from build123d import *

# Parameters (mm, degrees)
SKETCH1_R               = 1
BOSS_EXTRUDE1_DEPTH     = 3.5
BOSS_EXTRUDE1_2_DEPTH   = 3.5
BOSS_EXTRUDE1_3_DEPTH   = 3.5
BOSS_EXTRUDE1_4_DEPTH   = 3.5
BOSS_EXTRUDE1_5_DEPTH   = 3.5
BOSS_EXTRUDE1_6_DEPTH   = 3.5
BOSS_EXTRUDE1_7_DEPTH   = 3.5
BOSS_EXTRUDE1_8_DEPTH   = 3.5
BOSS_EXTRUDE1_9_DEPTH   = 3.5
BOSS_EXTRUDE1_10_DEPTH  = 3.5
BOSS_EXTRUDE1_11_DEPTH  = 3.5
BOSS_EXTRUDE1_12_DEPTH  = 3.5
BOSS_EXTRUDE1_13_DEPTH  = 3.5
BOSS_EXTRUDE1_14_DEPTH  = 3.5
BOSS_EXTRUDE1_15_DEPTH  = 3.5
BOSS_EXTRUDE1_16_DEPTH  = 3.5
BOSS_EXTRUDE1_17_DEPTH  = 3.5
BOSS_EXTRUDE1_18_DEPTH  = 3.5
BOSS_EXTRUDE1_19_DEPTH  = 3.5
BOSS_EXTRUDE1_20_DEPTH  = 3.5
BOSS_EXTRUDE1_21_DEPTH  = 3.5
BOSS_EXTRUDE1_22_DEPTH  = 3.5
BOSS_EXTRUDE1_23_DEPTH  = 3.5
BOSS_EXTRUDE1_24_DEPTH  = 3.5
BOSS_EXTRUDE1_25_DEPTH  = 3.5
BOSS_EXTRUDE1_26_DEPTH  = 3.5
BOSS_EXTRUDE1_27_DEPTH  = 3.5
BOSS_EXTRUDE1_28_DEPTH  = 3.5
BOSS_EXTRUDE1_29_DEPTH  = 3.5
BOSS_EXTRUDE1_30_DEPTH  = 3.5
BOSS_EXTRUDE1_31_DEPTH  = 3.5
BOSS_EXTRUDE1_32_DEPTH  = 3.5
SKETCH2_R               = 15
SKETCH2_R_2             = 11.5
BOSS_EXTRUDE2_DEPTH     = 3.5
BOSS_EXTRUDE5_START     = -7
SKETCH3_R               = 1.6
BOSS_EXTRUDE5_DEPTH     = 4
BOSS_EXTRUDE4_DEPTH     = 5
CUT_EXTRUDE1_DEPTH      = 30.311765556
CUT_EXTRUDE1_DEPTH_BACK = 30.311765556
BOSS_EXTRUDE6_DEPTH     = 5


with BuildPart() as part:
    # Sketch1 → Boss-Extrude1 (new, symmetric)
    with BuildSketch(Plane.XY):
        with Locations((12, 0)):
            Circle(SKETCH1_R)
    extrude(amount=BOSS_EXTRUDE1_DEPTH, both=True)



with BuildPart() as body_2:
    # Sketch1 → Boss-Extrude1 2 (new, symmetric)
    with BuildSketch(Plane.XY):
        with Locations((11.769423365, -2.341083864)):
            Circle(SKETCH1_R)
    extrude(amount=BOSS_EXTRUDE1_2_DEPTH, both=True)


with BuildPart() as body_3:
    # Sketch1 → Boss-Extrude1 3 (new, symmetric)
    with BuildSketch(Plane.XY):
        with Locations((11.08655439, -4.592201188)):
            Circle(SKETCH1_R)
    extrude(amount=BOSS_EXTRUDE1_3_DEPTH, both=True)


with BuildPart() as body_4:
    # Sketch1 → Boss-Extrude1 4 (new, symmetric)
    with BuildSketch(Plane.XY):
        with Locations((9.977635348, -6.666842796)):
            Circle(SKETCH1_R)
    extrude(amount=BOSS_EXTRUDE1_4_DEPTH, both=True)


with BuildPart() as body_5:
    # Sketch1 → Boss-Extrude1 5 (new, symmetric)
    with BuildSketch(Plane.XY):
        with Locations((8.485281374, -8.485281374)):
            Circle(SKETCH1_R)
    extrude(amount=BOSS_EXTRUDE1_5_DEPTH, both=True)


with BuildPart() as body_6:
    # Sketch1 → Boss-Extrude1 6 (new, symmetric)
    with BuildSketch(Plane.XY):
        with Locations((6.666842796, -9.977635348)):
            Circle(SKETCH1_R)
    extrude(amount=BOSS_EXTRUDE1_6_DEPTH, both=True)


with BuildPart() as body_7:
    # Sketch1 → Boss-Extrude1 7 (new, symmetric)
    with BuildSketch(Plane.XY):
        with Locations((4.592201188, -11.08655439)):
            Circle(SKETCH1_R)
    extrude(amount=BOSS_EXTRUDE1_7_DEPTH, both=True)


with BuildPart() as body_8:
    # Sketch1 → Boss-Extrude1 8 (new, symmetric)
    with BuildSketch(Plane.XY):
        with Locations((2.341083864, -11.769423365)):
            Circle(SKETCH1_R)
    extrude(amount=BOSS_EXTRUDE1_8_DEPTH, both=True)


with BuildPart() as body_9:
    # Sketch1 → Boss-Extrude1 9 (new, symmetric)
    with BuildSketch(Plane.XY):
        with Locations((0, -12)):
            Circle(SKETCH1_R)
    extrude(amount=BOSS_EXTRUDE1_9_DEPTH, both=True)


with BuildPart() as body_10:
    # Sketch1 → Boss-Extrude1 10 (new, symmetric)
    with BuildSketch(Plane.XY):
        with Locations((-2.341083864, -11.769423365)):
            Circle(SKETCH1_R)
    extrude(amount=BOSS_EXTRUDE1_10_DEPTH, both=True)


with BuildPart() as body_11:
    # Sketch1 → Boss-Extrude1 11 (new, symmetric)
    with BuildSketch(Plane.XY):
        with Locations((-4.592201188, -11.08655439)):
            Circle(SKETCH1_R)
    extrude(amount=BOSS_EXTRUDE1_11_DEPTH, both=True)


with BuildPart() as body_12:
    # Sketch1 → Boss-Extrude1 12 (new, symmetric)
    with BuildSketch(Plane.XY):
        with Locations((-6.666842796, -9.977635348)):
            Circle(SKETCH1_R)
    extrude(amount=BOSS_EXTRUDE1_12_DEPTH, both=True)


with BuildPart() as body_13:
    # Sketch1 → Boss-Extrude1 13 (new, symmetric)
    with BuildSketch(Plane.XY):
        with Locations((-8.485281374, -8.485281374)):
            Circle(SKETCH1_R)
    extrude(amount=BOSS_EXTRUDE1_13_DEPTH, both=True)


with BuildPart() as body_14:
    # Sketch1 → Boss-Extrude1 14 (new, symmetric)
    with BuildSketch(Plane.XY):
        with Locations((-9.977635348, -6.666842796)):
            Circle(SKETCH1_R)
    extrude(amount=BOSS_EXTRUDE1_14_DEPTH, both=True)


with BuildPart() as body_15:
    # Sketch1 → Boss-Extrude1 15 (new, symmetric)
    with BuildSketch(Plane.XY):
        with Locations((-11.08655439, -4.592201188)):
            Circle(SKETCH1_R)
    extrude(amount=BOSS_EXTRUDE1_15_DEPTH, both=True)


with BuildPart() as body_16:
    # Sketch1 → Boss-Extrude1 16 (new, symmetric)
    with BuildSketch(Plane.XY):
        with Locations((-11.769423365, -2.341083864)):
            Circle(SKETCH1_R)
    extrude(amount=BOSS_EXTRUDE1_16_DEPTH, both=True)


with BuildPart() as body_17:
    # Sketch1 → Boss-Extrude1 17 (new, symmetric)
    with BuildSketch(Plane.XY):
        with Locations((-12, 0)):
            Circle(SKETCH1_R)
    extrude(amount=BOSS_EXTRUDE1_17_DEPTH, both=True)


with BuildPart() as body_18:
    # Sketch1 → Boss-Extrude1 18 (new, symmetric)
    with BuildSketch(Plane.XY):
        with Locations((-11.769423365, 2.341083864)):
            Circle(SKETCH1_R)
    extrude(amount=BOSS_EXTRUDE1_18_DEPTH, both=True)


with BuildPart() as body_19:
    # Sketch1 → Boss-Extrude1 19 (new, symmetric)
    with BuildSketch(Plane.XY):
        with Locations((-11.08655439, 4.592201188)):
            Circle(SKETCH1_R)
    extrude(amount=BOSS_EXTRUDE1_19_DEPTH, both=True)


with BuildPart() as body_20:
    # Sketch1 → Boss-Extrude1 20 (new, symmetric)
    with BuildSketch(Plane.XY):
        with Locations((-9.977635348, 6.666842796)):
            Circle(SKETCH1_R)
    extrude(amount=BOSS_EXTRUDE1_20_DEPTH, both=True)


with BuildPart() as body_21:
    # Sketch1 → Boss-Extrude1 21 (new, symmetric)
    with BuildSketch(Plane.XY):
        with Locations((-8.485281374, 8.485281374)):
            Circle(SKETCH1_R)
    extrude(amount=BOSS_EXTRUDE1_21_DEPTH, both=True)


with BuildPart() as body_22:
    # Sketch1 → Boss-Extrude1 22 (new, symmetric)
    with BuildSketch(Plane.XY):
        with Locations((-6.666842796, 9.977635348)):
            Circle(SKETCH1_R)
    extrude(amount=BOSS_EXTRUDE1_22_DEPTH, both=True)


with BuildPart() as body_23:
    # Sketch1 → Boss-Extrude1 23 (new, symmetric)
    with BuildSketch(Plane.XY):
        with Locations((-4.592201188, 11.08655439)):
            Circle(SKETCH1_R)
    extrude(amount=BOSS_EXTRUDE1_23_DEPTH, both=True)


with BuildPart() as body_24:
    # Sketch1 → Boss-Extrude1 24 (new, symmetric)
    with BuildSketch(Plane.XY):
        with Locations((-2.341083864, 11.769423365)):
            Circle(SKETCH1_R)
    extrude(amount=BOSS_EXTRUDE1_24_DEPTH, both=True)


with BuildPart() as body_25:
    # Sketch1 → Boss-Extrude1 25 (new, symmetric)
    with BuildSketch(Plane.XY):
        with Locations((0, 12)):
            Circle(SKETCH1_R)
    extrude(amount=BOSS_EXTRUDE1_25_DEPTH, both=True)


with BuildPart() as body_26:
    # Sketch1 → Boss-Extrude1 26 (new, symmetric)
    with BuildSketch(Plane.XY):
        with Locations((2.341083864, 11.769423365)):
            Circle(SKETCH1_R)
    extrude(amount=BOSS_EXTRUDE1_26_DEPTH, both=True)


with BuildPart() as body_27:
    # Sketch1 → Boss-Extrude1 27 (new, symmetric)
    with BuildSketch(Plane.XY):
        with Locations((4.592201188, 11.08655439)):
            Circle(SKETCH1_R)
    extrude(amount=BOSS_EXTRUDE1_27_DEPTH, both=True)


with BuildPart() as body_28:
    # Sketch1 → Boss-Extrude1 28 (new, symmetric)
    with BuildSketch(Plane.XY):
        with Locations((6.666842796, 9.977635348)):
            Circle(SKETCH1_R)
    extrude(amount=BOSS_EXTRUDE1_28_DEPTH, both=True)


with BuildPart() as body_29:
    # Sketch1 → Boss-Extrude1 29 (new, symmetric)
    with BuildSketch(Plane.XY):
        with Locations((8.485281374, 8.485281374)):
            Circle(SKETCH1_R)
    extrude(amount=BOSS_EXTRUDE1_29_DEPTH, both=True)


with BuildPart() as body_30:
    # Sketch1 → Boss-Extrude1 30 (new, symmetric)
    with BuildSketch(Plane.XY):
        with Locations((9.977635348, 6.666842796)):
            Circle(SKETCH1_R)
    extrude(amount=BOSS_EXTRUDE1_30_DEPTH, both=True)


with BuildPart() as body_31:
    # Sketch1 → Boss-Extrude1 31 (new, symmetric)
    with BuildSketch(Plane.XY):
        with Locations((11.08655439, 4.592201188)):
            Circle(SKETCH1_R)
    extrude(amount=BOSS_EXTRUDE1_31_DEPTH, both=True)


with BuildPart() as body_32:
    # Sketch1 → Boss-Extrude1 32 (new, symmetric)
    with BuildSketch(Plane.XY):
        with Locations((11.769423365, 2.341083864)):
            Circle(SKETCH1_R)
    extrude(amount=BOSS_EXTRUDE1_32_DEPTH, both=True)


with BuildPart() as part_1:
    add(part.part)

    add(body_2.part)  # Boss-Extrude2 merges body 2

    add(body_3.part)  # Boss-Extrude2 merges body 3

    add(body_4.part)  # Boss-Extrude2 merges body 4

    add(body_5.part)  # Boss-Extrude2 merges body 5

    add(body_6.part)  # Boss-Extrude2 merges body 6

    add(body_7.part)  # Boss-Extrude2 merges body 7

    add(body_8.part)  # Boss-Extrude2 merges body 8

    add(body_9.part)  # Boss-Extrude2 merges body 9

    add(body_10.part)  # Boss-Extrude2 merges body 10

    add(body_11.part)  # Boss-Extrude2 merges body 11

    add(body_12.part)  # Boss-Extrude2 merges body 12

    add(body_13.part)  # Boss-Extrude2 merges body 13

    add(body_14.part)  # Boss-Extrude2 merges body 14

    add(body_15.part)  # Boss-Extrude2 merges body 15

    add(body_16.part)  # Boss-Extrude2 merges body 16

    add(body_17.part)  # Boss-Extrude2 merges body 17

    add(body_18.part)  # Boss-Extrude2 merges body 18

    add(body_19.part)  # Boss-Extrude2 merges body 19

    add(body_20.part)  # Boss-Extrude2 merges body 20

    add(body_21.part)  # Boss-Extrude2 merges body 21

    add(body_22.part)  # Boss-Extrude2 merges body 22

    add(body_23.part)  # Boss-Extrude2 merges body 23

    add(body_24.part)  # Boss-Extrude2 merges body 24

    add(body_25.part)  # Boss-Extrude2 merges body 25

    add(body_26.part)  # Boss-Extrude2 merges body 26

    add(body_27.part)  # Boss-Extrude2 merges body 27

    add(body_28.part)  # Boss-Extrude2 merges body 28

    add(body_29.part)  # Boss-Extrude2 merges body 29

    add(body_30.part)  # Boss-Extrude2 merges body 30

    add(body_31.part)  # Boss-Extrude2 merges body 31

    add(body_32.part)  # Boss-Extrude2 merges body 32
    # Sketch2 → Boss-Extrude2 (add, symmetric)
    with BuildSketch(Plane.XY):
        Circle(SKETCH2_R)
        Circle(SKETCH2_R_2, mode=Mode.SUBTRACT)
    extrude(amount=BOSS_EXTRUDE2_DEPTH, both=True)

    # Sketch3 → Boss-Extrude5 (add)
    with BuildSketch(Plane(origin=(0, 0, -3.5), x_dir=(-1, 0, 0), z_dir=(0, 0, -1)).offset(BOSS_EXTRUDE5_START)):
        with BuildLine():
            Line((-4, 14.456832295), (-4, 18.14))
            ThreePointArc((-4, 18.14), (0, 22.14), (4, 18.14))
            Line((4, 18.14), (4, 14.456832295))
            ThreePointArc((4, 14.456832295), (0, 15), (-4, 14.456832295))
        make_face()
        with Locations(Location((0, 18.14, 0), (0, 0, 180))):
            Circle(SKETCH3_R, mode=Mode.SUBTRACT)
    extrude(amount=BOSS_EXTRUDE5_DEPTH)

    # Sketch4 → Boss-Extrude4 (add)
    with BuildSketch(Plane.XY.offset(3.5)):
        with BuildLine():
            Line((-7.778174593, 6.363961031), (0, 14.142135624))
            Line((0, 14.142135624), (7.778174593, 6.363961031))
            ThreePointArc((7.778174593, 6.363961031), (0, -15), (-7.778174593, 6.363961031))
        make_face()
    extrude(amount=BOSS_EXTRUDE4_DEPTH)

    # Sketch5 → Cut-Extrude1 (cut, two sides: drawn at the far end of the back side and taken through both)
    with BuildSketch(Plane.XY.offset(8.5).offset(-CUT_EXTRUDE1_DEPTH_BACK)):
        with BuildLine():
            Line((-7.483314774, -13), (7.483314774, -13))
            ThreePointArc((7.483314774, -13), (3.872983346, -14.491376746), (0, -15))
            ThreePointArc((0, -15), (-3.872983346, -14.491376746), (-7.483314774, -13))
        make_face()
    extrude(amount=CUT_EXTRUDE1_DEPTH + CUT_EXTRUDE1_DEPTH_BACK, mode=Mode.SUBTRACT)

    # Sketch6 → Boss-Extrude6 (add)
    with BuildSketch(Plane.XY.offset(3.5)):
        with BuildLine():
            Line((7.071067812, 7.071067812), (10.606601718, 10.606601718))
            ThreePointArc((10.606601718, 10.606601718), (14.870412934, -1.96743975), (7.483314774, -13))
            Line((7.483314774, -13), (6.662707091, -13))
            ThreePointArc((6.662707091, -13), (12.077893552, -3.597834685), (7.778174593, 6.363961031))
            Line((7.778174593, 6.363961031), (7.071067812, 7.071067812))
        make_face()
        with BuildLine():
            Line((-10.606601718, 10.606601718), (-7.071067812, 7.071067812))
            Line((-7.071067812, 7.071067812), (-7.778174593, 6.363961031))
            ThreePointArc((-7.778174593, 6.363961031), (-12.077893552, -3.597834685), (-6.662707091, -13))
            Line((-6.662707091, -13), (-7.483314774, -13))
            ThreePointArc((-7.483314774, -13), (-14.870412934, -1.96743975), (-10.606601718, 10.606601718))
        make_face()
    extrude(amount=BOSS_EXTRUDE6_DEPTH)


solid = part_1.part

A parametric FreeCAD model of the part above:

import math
import FreeCAD as App
import Part
import Sketcher

V = App.Vector
Q = App.Units.Quantity

doc = App.newDocument("Part")
body = doc.addObject("PartDesign::Body", "Body")

# Sketch on XY plane
sketch1 = body.newObject("Sketcher::SketchObject", "Sketch")
sketch1.AttachmentSupport = (doc.getObject("XY_Plane"), [""])
sketch1.MapMode = "FlatFace"
sketch1.addGeometry(Part.Circle(V(12, 0, 0), V(0, 0, 1), 1), False)
sketch1.addConstraint(Sketcher.Constraint("PointOnObject", 0, 3, -1))
sketch1.addConstraint(Sketcher.Constraint("Diameter", 0, Q("2 mm")))
sketch1.addConstraint(Sketcher.Constraint("DistanceX", -1, 1, 0, 3, Q("12 mm")))
pad1 = body.newObject("PartDesign::Pad", "Pad")
pad1.Profile = sketch1
pad1.Length = 7
pad1.Midplane = True
body2 = doc.addObject("PartDesign::Body", "Body001")

# Sketch on XY plane
sketch2 = body2.newObject("Sketcher::SketchObject", "Sketch001")
sketch2.AttachmentSupport = (doc.getObject("XY_Plane001"), [""])
sketch2.MapMode = "FlatFace"
sketch2.addGeometry(Part.Circle(V(11.8, -2.3, 0), V(0, 0, 1), 1), False)
sketch2.addConstraint(Sketcher.Constraint("Diameter", 0, Q("2 mm")))
sketch2.addConstraint(Sketcher.Constraint("DistanceX", -1, 1, 0, 3, Q("11.769423 mm")))
sketch2.addConstraint(Sketcher.Constraint("DistanceY", 0, 3, -1, 1, Q("2.341084 mm")))
pad2 = body2.newObject("PartDesign::Pad", "Pad001")
pad2.Profile = sketch2
pad2.Length = 7
pad2.Midplane = True
body3 = doc.addObject("PartDesign::Body", "Body002")

# Sketch on XY plane
sketch3 = body3.newObject("Sketcher::SketchObject", "Sketch002")
sketch3.AttachmentSupport = (doc.getObject("XY_Plane002"), [""])
sketch3.MapMode = "FlatFace"
sketch3.addGeometry(Part.Circle(V(11.1, -4.6, 0), V(0, 0, 1), 1), False)
sketch3.addConstraint(Sketcher.Constraint("Diameter", 0, Q("2 mm")))
sketch3.addConstraint(Sketcher.Constraint("DistanceY", 0, 3, -1, 1, Q("4.592201 mm")))
sketch3.addConstraint(Sketcher.Constraint("DistanceX", -1, 1, 0, 3, Q("11.086554 mm")))
pad3 = body3.newObject("PartDesign::Pad", "Pad002")
pad3.Profile = sketch3
pad3.Length = 7
pad3.Midplane = True
body4 = doc.addObject("PartDesign::Body", "Body003")

# Sketch on XY plane
sketch4 = body4.newObject("Sketcher::SketchObject", "Sketch003")
sketch4.AttachmentSupport = (doc.getObject("XY_Plane003"), [""])
sketch4.MapMode = "FlatFace"
sketch4.addGeometry(Part.Circle(V(10, -6.7, 0), V(0, 0, 1), 1), False)
sketch4.addConstraint(Sketcher.Constraint("Diameter", 0, Q("2 mm")))
sketch4.addConstraint(Sketcher.Constraint("DistanceX", -1, 1, 0, 3, Q("9.977635 mm")))
sketch4.addConstraint(Sketcher.Constraint("DistanceY", 0, 3, -1, 1, Q("6.666843 mm")))
pad4 = body4.newObject("PartDesign::Pad", "Pad003")
pad4.Profile = sketch4
pad4.Length = 7
pad4.Midplane = True
body5 = doc.addObject("PartDesign::Body", "Body004")

# Sketch on XY plane
sketch5 = body5.newObject("Sketcher::SketchObject", "Sketch004")
sketch5.AttachmentSupport = (doc.getObject("XY_Plane004"), [""])
sketch5.MapMode = "FlatFace"
sketch5.addGeometry(Part.Circle(V(8.5, -8.5, 0), V(0, 0, 1), 1), False)
sketch5.addConstraint(Sketcher.Constraint("Diameter", 0, Q("2 mm")))
sketch5.addConstraint(Sketcher.Constraint("DistanceX", -1, 1, 0, 3, Q("8.485281 mm")))
sketch5.addConstraint(Sketcher.Constraint("DistanceY", 0, 3, -1, 1, Q("8.485281 mm")))
pad5 = body5.newObject("PartDesign::Pad", "Pad004")
pad5.Profile = sketch5
pad5.Length = 7
pad5.Midplane = True
body6 = doc.addObject("PartDesign::Body", "Body005")

# Sketch on XY plane
sketch6 = body6.newObject("Sketcher::SketchObject", "Sketch005")
sketch6.AttachmentSupport = (doc.getObject("XY_Plane005"), [""])
sketch6.MapMode = "FlatFace"
sketch6.addGeometry(Part.Circle(V(6.7, -10, 0), V(0, 0, 1), 1), False)
sketch6.addConstraint(Sketcher.Constraint("Diameter", 0, Q("2 mm")))
sketch6.addConstraint(Sketcher.Constraint("DistanceX", -1, 1, 0, 3, Q("6.666843 mm")))
sketch6.addConstraint(Sketcher.Constraint("DistanceY", 0, 3, -1, 1, Q("9.977635 mm")))
pad6 = body6.newObject("PartDesign::Pad", "Pad005")
pad6.Profile = sketch6
pad6.Length = 7
pad6.Midplane = True
body7 = doc.addObject("PartDesign::Body", "Body006")

# Sketch on XY plane
sketch7 = body7.newObject("Sketcher::SketchObject", "Sketch006")
sketch7.AttachmentSupport = (doc.getObject("XY_Plane006"), [""])
sketch7.MapMode = "FlatFace"
sketch7.addGeometry(Part.Circle(V(4.6, -11.1, 0), V(0, 0, 1), 1), False)
sketch7.addConstraint(Sketcher.Constraint("Diameter", 0, Q("2 mm")))
sketch7.addConstraint(Sketcher.Constraint("DistanceX", -1, 1, 0, 3, Q("4.592201 mm")))
sketch7.addConstraint(Sketcher.Constraint("DistanceY", 0, 3, -1, 1, Q("11.086554 mm")))
pad7 = body7.newObject("PartDesign::Pad", "Pad006")
pad7.Profile = sketch7
pad7.Length = 7
pad7.Midplane = True
body8 = doc.addObject("PartDesign::Body", "Body007")

# Sketch on XY plane
sketch8 = body8.newObject("Sketcher::SketchObject", "Sketch007")
sketch8.AttachmentSupport = (doc.getObject("XY_Plane007"), [""])
sketch8.MapMode = "FlatFace"
sketch8.addGeometry(Part.Circle(V(2.3, -11.8, 0), V(0, 0, 1), 1), False)
sketch8.addConstraint(Sketcher.Constraint("Diameter", 0, Q("2 mm")))
sketch8.addConstraint(Sketcher.Constraint("DistanceX", -1, 1, 0, 3, Q("2.341084 mm")))
sketch8.addConstraint(Sketcher.Constraint("DistanceY", 0, 3, -1, 1, Q("11.769423 mm")))
pad8 = body8.newObject("PartDesign::Pad", "Pad007")
pad8.Profile = sketch8
pad8.Length = 7
pad8.Midplane = True
body9 = doc.addObject("PartDesign::Body", "Body008")

# Sketch on XY plane
sketch9 = body9.newObject("Sketcher::SketchObject", "Sketch008")
sketch9.AttachmentSupport = (doc.getObject("XY_Plane008"), [""])
sketch9.MapMode = "FlatFace"
sketch9.addGeometry(Part.Circle(V(0, -12, 0), V(0, 0, 1), 1), False)
sketch9.addConstraint(Sketcher.Constraint("PointOnObject", 0, 3, -2))
sketch9.addConstraint(Sketcher.Constraint("Diameter", 0, Q("2 mm")))
sketch9.addConstraint(Sketcher.Constraint("DistanceY", 0, 3, -1, 1, Q("12 mm")))
pad9 = body9.newObject("PartDesign::Pad", "Pad008")
pad9.Profile = sketch9
pad9.Length = 7
pad9.Midplane = True
body10 = doc.addObject("PartDesign::Body", "Body009")

# Sketch on XY plane
sketch10 = body10.newObject("Sketcher::SketchObject", "Sketch009")
sketch10.AttachmentSupport = (doc.getObject("XY_Plane009"), [""])
sketch10.MapMode = "FlatFace"
sketch10.addGeometry(Part.Circle(V(-2.3, -11.8, 0), V(0, 0, 1), 1), False)
sketch10.addConstraint(Sketcher.Constraint("Diameter", 0, Q("2 mm")))
sketch10.addConstraint(Sketcher.Constraint("DistanceX", 0, 3, -1, 1, Q("2.341084 mm")))
sketch10.addConstraint(Sketcher.Constraint("DistanceY", 0, 3, -1, 1, Q("11.769423 mm")))
pad10 = body10.newObject("PartDesign::Pad", "Pad009")
pad10.Profile = sketch10
pad10.Length = 7
pad10.Midplane = True
body11 = doc.addObject("PartDesign::Body", "Body010")

# Sketch on XY plane
sketch11 = body11.newObject("Sketcher::SketchObject", "Sketch010")
sketch11.AttachmentSupport = (doc.getObject("XY_Plane010"), [""])
sketch11.MapMode = "FlatFace"
sketch11.addGeometry(Part.Circle(V(-4.6, -11.1, 0), V(0, 0, 1), 1), False)
sketch11.addConstraint(Sketcher.Constraint("Diameter", 0, Q("2 mm")))
sketch11.addConstraint(Sketcher.Constraint("DistanceX", 0, 3, -1, 1, Q("4.592201 mm")))
sketch11.addConstraint(Sketcher.Constraint("DistanceY", 0, 3, -1, 1, Q("11.086554 mm")))
pad11 = body11.newObject("PartDesign::Pad", "Pad010")
pad11.Profile = sketch11
pad11.Length = 7
pad11.Midplane = True
body12 = doc.addObject("PartDesign::Body", "Body011")

# Sketch on XY plane
sketch12 = body12.newObject("Sketcher::SketchObject", "Sketch011")
sketch12.AttachmentSupport = (doc.getObject("XY_Plane011"), [""])
sketch12.MapMode = "FlatFace"
sketch12.addGeometry(Part.Circle(V(-6.7, -10, 0), V(0, 0, 1), 1), False)
sketch12.addConstraint(Sketcher.Constraint("Diameter", 0, Q("2 mm")))
sketch12.addConstraint(Sketcher.Constraint("DistanceX", 0, 3, -1, 1, Q("6.666843 mm")))
sketch12.addConstraint(Sketcher.Constraint("DistanceY", 0, 3, -1, 1, Q("9.977635 mm")))
pad12 = body12.newObject("PartDesign::Pad", "Pad011")
pad12.Profile = sketch12
pad12.Length = 7
pad12.Midplane = True
body13 = doc.addObject("PartDesign::Body", "Body012")

# Sketch on XY plane
sketch13 = body13.newObject("Sketcher::SketchObject", "Sketch012")
sketch13.AttachmentSupport = (doc.getObject("XY_Plane012"), [""])
sketch13.MapMode = "FlatFace"
sketch13.addGeometry(Part.Circle(V(-8.5, -8.5, 0), V(0, 0, 1), 1), False)
sketch13.addConstraint(Sketcher.Constraint("Diameter", 0, Q("2 mm")))
sketch13.addConstraint(Sketcher.Constraint("DistanceX", 0, 3, -1, 1, Q("8.485281 mm")))
sketch13.addConstraint(Sketcher.Constraint("DistanceY", 0, 3, -1, 1, Q("8.485281 mm")))
pad13 = body13.newObject("PartDesign::Pad", "Pad012")
pad13.Profile = sketch13
pad13.Length = 7
pad13.Midplane = True
body14 = doc.addObject("PartDesign::Body", "Body013")

# Sketch on XY plane
sketch14 = body14.newObject("Sketcher::SketchObject", "Sketch013")
sketch14.AttachmentSupport = (doc.getObject("XY_Plane013"), [""])
sketch14.MapMode = "FlatFace"
sketch14.addGeometry(Part.Circle(V(-10, -6.7, 0), V(0, 0, 1), 1), False)
sketch14.addConstraint(Sketcher.Constraint("Diameter", 0, Q("2 mm")))
sketch14.addConstraint(Sketcher.Constraint("DistanceX", 0, 3, -1, 1, Q("9.977635 mm")))
sketch14.addConstraint(Sketcher.Constraint("DistanceY", 0, 3, -1, 1, Q("6.666843 mm")))
pad14 = body14.newObject("PartDesign::Pad", "Pad013")
pad14.Profile = sketch14
pad14.Length = 7
pad14.Midplane = True
body15 = doc.addObject("PartDesign::Body", "Body014")

# Sketch on XY plane
sketch15 = body15.newObject("Sketcher::SketchObject", "Sketch014")
sketch15.AttachmentSupport = (doc.getObject("XY_Plane014"), [""])
sketch15.MapMode = "FlatFace"
sketch15.addGeometry(Part.Circle(V(-11.1, -4.6, 0), V(0, 0, 1), 1), False)
sketch15.addConstraint(Sketcher.Constraint("Diameter", 0, Q("2 mm")))
sketch15.addConstraint(Sketcher.Constraint("DistanceY", 0, 3, -1, 1, Q("4.592201 mm")))
sketch15.addConstraint(Sketcher.Constraint("DistanceX", 0, 3, -1, 1, Q("11.086554 mm")))
pad15 = body15.newObject("PartDesign::Pad", "Pad014")
pad15.Profile = sketch15
pad15.Length = 7
pad15.Midplane = True
body16 = doc.addObject("PartDesign::Body", "Body015")

# Sketch on XY plane
sketch16 = body16.newObject("Sketcher::SketchObject", "Sketch015")
sketch16.AttachmentSupport = (doc.getObject("XY_Plane015"), [""])
sketch16.MapMode = "FlatFace"
sketch16.addGeometry(Part.Circle(V(-11.8, -2.3, 0), V(0, 0, 1), 1), False)
sketch16.addConstraint(Sketcher.Constraint("Diameter", 0, Q("2 mm")))
sketch16.addConstraint(Sketcher.Constraint("DistanceX", 0, 3, -1, 1, Q("11.769423 mm")))
sketch16.addConstraint(Sketcher.Constraint("DistanceY", 0, 3, -1, 1, Q("2.341084 mm")))
pad16 = body16.newObject("PartDesign::Pad", "Pad015")
pad16.Profile = sketch16
pad16.Length = 7
pad16.Midplane = True
body17 = doc.addObject("PartDesign::Body", "Body016")

# Sketch on XY plane
sketch17 = body17.newObject("Sketcher::SketchObject", "Sketch016")
sketch17.AttachmentSupport = (doc.getObject("XY_Plane016"), [""])
sketch17.MapMode = "FlatFace"
sketch17.addGeometry(Part.Circle(V(-12, 0, 0), V(0, 0, 1), 1), False)
sketch17.addConstraint(Sketcher.Constraint("PointOnObject", 0, 3, -1))
sketch17.addConstraint(Sketcher.Constraint("Diameter", 0, Q("2 mm")))
sketch17.addConstraint(Sketcher.Constraint("DistanceX", 0, 3, -1, 1, Q("12 mm")))
pad17 = body17.newObject("PartDesign::Pad", "Pad016")
pad17.Profile = sketch17
pad17.Length = 7
pad17.Midplane = True
body18 = doc.addObject("PartDesign::Body", "Body017")

# Sketch on XY plane
sketch18 = body18.newObject("Sketcher::SketchObject", "Sketch017")
sketch18.AttachmentSupport = (doc.getObject("XY_Plane017"), [""])
sketch18.MapMode = "FlatFace"
sketch18.addGeometry(Part.Circle(V(-11.8, 2.3, 0), V(0, 0, 1), 1), False)
sketch18.addConstraint(Sketcher.Constraint("Diameter", 0, Q("2 mm")))
sketch18.addConstraint(Sketcher.Constraint("DistanceX", 0, 3, -1, 1, Q("11.769423 mm")))
sketch18.addConstraint(Sketcher.Constraint("DistanceY", -1, 1, 0, 3, Q("2.341084 mm")))
pad18 = body18.newObject("PartDesign::Pad", "Pad017")
pad18.Profile = sketch18
pad18.Length = 7
pad18.Midplane = True
body19 = doc.addObject("PartDesign::Body", "Body018")

# Sketch on XY plane
sketch19 = body19.newObject("Sketcher::SketchObject", "Sketch018")
sketch19.AttachmentSupport = (doc.getObject("XY_Plane018"), [""])
sketch19.MapMode = "FlatFace"
sketch19.addGeometry(Part.Circle(V(-11.1, 4.6, 0), V(0, 0, 1), 1), False)
sketch19.addConstraint(Sketcher.Constraint("Diameter", 0, Q("2 mm")))
sketch19.addConstraint(Sketcher.Constraint("DistanceY", -1, 1, 0, 3, Q("4.592201 mm")))
sketch19.addConstraint(Sketcher.Constraint("DistanceX", 0, 3, -1, 1, Q("11.086554 mm")))
pad19 = body19.newObject("PartDesign::Pad", "Pad018")
pad19.Profile = sketch19
pad19.Length = 7
pad19.Midplane = True
body20 = doc.addObject("PartDesign::Body", "Body019")

# Sketch on XY plane
sketch20 = body20.newObject("Sketcher::SketchObject", "Sketch019")
sketch20.AttachmentSupport = (doc.getObject("XY_Plane019"), [""])
sketch20.MapMode = "FlatFace"
sketch20.addGeometry(Part.Circle(V(-10, 6.7, 0), V(0, 0, 1), 1), False)
sketch20.addConstraint(Sketcher.Constraint("Diameter", 0, Q("2 mm")))
sketch20.addConstraint(Sketcher.Constraint("DistanceX", 0, 3, -1, 1, Q("9.977635 mm")))
sketch20.addConstraint(Sketcher.Constraint("DistanceY", -1, 1, 0, 3, Q("6.666843 mm")))
pad20 = body20.newObject("PartDesign::Pad", "Pad019")
pad20.Profile = sketch20
pad20.Length = 7
pad20.Midplane = True
body21 = doc.addObject("PartDesign::Body", "Body020")

# Sketch on XY plane
sketch21 = body21.newObject("Sketcher::SketchObject", "Sketch020")
sketch21.AttachmentSupport = (doc.getObject("XY_Plane020"), [""])
sketch21.MapMode = "FlatFace"
sketch21.addGeometry(Part.Circle(V(-8.5, 8.5, 0), V(0, 0, 1), 1), False)
sketch21.addConstraint(Sketcher.Constraint("Diameter", 0, Q("2 mm")))
sketch21.addConstraint(Sketcher.Constraint("DistanceX", 0, 3, -1, 1, Q("8.485281 mm")))
sketch21.addConstraint(Sketcher.Constraint("DistanceY", -1, 1, 0, 3, Q("8.485281 mm")))
pad21 = body21.newObject("PartDesign::Pad", "Pad020")
pad21.Profile = sketch21
pad21.Length = 7
pad21.Midplane = True
body22 = doc.addObject("PartDesign::Body", "Body021")

# Sketch on XY plane
sketch22 = body22.newObject("Sketcher::SketchObject", "Sketch021")
sketch22.AttachmentSupport = (doc.getObject("XY_Plane021"), [""])
sketch22.MapMode = "FlatFace"
sketch22.addGeometry(Part.Circle(V(-6.7, 10, 0), V(0, 0, 1), 1), False)
sketch22.addConstraint(Sketcher.Constraint("Diameter", 0, Q("2 mm")))
sketch22.addConstraint(Sketcher.Constraint("DistanceX", 0, 3, -1, 1, Q("6.666843 mm")))
sketch22.addConstraint(Sketcher.Constraint("DistanceY", -1, 1, 0, 3, Q("9.977635 mm")))
pad22 = body22.newObject("PartDesign::Pad", "Pad021")
pad22.Profile = sketch22
pad22.Length = 7
pad22.Midplane = True
body23 = doc.addObject("PartDesign::Body", "Body022")

# Sketch on XY plane
sketch23 = body23.newObject("Sketcher::SketchObject", "Sketch022")
sketch23.AttachmentSupport = (doc.getObject("XY_Plane022"), [""])
sketch23.MapMode = "FlatFace"
sketch23.addGeometry(Part.Circle(V(-4.6, 11.1, 0), V(0, 0, 1), 1), False)
sketch23.addConstraint(Sketcher.Constraint("Diameter", 0, Q("2 mm")))
sketch23.addConstraint(Sketcher.Constraint("DistanceX", 0, 3, -1, 1, Q("4.592201 mm")))
sketch23.addConstraint(Sketcher.Constraint("DistanceY", -1, 1, 0, 3, Q("11.086554 mm")))
pad23 = body23.newObject("PartDesign::Pad", "Pad022")
pad23.Profile = sketch23
pad23.Length = 7
pad23.Midplane = True
body24 = doc.addObject("PartDesign::Body", "Body023")

# Sketch on XY plane
sketch24 = body24.newObject("Sketcher::SketchObject", "Sketch023")
sketch24.AttachmentSupport = (doc.getObject("XY_Plane023"), [""])
sketch24.MapMode = "FlatFace"
sketch24.addGeometry(Part.Circle(V(-2.3, 11.8, 0), V(0, 0, 1), 1), False)
sketch24.addConstraint(Sketcher.Constraint("Diameter", 0, Q("2 mm")))
sketch24.addConstraint(Sketcher.Constraint("DistanceX", 0, 3, -1, 1, Q("2.341084 mm")))
sketch24.addConstraint(Sketcher.Constraint("DistanceY", -1, 1, 0, 3, Q("11.769423 mm")))
pad24 = body24.newObject("PartDesign::Pad", "Pad023")
pad24.Profile = sketch24
pad24.Length = 7
pad24.Midplane = True
body25 = doc.addObject("PartDesign::Body", "Body024")

# Sketch on XY plane
sketch25 = body25.newObject("Sketcher::SketchObject", "Sketch024")
sketch25.AttachmentSupport = (doc.getObject("XY_Plane024"), [""])
sketch25.MapMode = "FlatFace"
sketch25.addGeometry(Part.Circle(V(0, 12, 0), V(0, 0, 1), 1), False)
sketch25.addConstraint(Sketcher.Constraint("PointOnObject", 0, 3, -2))
sketch25.addConstraint(Sketcher.Constraint("Diameter", 0, Q("2 mm")))
sketch25.addConstraint(Sketcher.Constraint("DistanceY", -1, 1, 0, 3, Q("12 mm")))
pad25 = body25.newObject("PartDesign::Pad", "Pad024")
pad25.Profile = sketch25
pad25.Length = 7
pad25.Midplane = True
body26 = doc.addObject("PartDesign::Body", "Body025")

# Sketch on XY plane
sketch26 = body26.newObject("Sketcher::SketchObject", "Sketch025")
sketch26.AttachmentSupport = (doc.getObject("XY_Plane025"), [""])
sketch26.MapMode = "FlatFace"
sketch26.addGeometry(Part.Circle(V(2.3, 11.8, 0), V(0, 0, 1), 1), False)
sketch26.addConstraint(Sketcher.Constraint("Diameter", 0, Q("2 mm")))
sketch26.addConstraint(Sketcher.Constraint("DistanceX", -1, 1, 0, 3, Q("2.341084 mm")))
sketch26.addConstraint(Sketcher.Constraint("DistanceY", -1, 1, 0, 3, Q("11.769423 mm")))
pad26 = body26.newObject("PartDesign::Pad", "Pad025")
pad26.Profile = sketch26
pad26.Length = 7
pad26.Midplane = True
body27 = doc.addObject("PartDesign::Body", "Body026")

# Sketch on XY plane
sketch27 = body27.newObject("Sketcher::SketchObject", "Sketch026")
sketch27.AttachmentSupport = (doc.getObject("XY_Plane026"), [""])
sketch27.MapMode = "FlatFace"
sketch27.addGeometry(Part.Circle(V(4.6, 11.1, 0), V(0, 0, 1), 1), False)
sketch27.addConstraint(Sketcher.Constraint("Diameter", 0, Q("2 mm")))
sketch27.addConstraint(Sketcher.Constraint("DistanceX", -1, 1, 0, 3, Q("4.592201 mm")))
sketch27.addConstraint(Sketcher.Constraint("DistanceY", -1, 1, 0, 3, Q("11.086554 mm")))
pad27 = body27.newObject("PartDesign::Pad", "Pad026")
pad27.Profile = sketch27
pad27.Length = 7
pad27.Midplane = True
body28 = doc.addObject("PartDesign::Body", "Body027")

# Sketch on XY plane
sketch28 = body28.newObject("Sketcher::SketchObject", "Sketch027")
sketch28.AttachmentSupport = (doc.getObject("XY_Plane027"), [""])
sketch28.MapMode = "FlatFace"
sketch28.addGeometry(Part.Circle(V(6.7, 10, 0), V(0, 0, 1), 1), False)
sketch28.addConstraint(Sketcher.Constraint("Diameter", 0, Q("2 mm")))
sketch28.addConstraint(Sketcher.Constraint("DistanceX", -1, 1, 0, 3, Q("6.666843 mm")))
sketch28.addConstraint(Sketcher.Constraint("DistanceY", -1, 1, 0, 3, Q("9.977635 mm")))
pad28 = body28.newObject("PartDesign::Pad", "Pad027")
pad28.Profile = sketch28
pad28.Length = 7
pad28.Midplane = True
body29 = doc.addObject("PartDesign::Body", "Body028")

# Sketch on XY plane
sketch29 = body29.newObject("Sketcher::SketchObject", "Sketch028")
sketch29.AttachmentSupport = (doc.getObject("XY_Plane028"), [""])
sketch29.MapMode = "FlatFace"
sketch29.addGeometry(Part.Circle(V(8.5, 8.5, 0), V(0, 0, 1), 1), False)
sketch29.addConstraint(Sketcher.Constraint("Diameter", 0, Q("2 mm")))
sketch29.addConstraint(Sketcher.Constraint("DistanceX", -1, 1, 0, 3, Q("8.485281 mm")))
sketch29.addConstraint(Sketcher.Constraint("DistanceY", -1, 1, 0, 3, Q("8.485281 mm")))
pad29 = body29.newObject("PartDesign::Pad", "Pad028")
pad29.Profile = sketch29
pad29.Length = 7
pad29.Midplane = True
body30 = doc.addObject("PartDesign::Body", "Body029")

# Sketch on XY plane
sketch30 = body30.newObject("Sketcher::SketchObject", "Sketch029")
sketch30.AttachmentSupport = (doc.getObject("XY_Plane029"), [""])
sketch30.MapMode = "FlatFace"
sketch30.addGeometry(Part.Circle(V(10, 6.7, 0), V(0, 0, 1), 1), False)
sketch30.addConstraint(Sketcher.Constraint("Diameter", 0, Q("2 mm")))
sketch30.addConstraint(Sketcher.Constraint("DistanceX", -1, 1, 0, 3, Q("9.977635 mm")))
sketch30.addConstraint(Sketcher.Constraint("DistanceY", -1, 1, 0, 3, Q("6.666843 mm")))
pad30 = body30.newObject("PartDesign::Pad", "Pad029")
pad30.Profile = sketch30
pad30.Length = 7
pad30.Midplane = True
body31 = doc.addObject("PartDesign::Body", "Body030")

# Sketch on XY plane
sketch31 = body31.newObject("Sketcher::SketchObject", "Sketch030")
sketch31.AttachmentSupport = (doc.getObject("XY_Plane030"), [""])
sketch31.MapMode = "FlatFace"
sketch31.addGeometry(Part.Circle(V(11.1, 4.6, 0), V(0, 0, 1), 1), False)
sketch31.addConstraint(Sketcher.Constraint("Diameter", 0, Q("2 mm")))
sketch31.addConstraint(Sketcher.Constraint("DistanceY", -1, 1, 0, 3, Q("4.592201 mm")))
sketch31.addConstraint(Sketcher.Constraint("DistanceX", -1, 1, 0, 3, Q("11.086554 mm")))
pad31 = body31.newObject("PartDesign::Pad", "Pad030")
pad31.Profile = sketch31
pad31.Length = 7
pad31.Midplane = True
body32 = doc.addObject("PartDesign::Body", "Body031")

# Sketch on XY plane
sketch32 = body32.newObject("Sketcher::SketchObject", "Sketch031")
sketch32.AttachmentSupport = (doc.getObject("XY_Plane031"), [""])
sketch32.MapMode = "FlatFace"
sketch32.addGeometry(Part.Circle(V(11.8, 2.3, 0), V(0, 0, 1), 1), False)
sketch32.addConstraint(Sketcher.Constraint("Diameter", 0, Q("2 mm")))
sketch32.addConstraint(Sketcher.Constraint("DistanceX", -1, 1, 0, 3, Q("11.769423 mm")))
sketch32.addConstraint(Sketcher.Constraint("DistanceY", -1, 1, 0, 3, Q("2.341084 mm")))
pad32 = body32.newObject("PartDesign::Pad", "Pad031")
pad32.Profile = sketch32
pad32.Length = 7
pad32.Midplane = True
body.AllowCompound = True
doc.recompute()

boolean = body.newObject("PartDesign::Boolean", "Boolean")
boolean.Type = "Fuse"
boolean.addObjects([body2])
doc.recompute()

boolean2 = body.newObject("PartDesign::Boolean", "Boolean001")
boolean2.Type = "Fuse"
boolean2.addObjects([body3])
doc.recompute()

boolean3 = body.newObject("PartDesign::Boolean", "Boolean002")
boolean3.Type = "Fuse"
boolean3.addObjects([body4])
doc.recompute()

boolean4 = body.newObject("PartDesign::Boolean", "Boolean003")
boolean4.Type = "Fuse"
boolean4.addObjects([body5])
doc.recompute()

boolean5 = body.newObject("PartDesign::Boolean", "Boolean004")
boolean5.Type = "Fuse"
boolean5.addObjects([body6])
doc.recompute()

boolean6 = body.newObject("PartDesign::Boolean", "Boolean005")
boolean6.Type = "Fuse"
boolean6.addObjects([body7])
doc.recompute()

boolean7 = body.newObject("PartDesign::Boolean", "Boolean006")
boolean7.Type = "Fuse"
boolean7.addObjects([body8])
doc.recompute()

boolean8 = body.newObject("PartDesign::Boolean", "Boolean007")
boolean8.Type = "Fuse"
boolean8.addObjects([body9])
doc.recompute()

boolean9 = body.newObject("PartDesign::Boolean", "Boolean008")
boolean9.Type = "Fuse"
boolean9.addObjects([body10])
doc.recompute()

boolean10 = body.newObject("PartDesign::Boolean", "Boolean009")
boolean10.Type = "Fuse"
boolean10.addObjects([body11])
doc.recompute()

boolean11 = body.newObject("PartDesign::Boolean", "Boolean010")
boolean11.Type = "Fuse"
boolean11.addObjects([body12])
doc.recompute()

boolean12 = body.newObject("PartDesign::Boolean", "Boolean011")
boolean12.Type = "Fuse"
boolean12.addObjects([body13])
doc.recompute()

boolean13 = body.newObject("PartDesign::Boolean", "Boolean012")
boolean13.Type = "Fuse"
boolean13.addObjects([body14])
doc.recompute()

boolean14 = body.newObject("PartDesign::Boolean", "Boolean013")
boolean14.Type = "Fuse"
boolean14.addObjects([body15])
doc.recompute()

boolean15 = body.newObject("PartDesign::Boolean", "Boolean014")
boolean15.Type = "Fuse"
boolean15.addObjects([body16])
doc.recompute()

boolean16 = body.newObject("PartDesign::Boolean", "Boolean015")
boolean16.Type = "Fuse"
boolean16.addObjects([body17])
doc.recompute()

boolean17 = body.newObject("PartDesign::Boolean", "Boolean016")
boolean17.Type = "Fuse"
boolean17.addObjects([body18])
doc.recompute()

boolean18 = body.newObject("PartDesign::Boolean", "Boolean017")
boolean18.Type = "Fuse"
boolean18.addObjects([body19])
doc.recompute()

boolean19 = body.newObject("PartDesign::Boolean", "Boolean018")
boolean19.Type = "Fuse"
boolean19.addObjects([body20])
doc.recompute()

boolean20 = body.newObject("PartDesign::Boolean", "Boolean019")
boolean20.Type = "Fuse"
boolean20.addObjects([body21])
doc.recompute()

boolean21 = body.newObject("PartDesign::Boolean", "Boolean020")
boolean21.Type = "Fuse"
boolean21.addObjects([body22])
doc.recompute()

boolean22 = body.newObject("PartDesign::Boolean", "Boolean021")
boolean22.Type = "Fuse"
boolean22.addObjects([body23])
doc.recompute()

boolean23 = body.newObject("PartDesign::Boolean", "Boolean022")
boolean23.Type = "Fuse"
boolean23.addObjects([body24])
doc.recompute()

boolean24 = body.newObject("PartDesign::Boolean", "Boolean023")
boolean24.Type = "Fuse"
boolean24.addObjects([body25])
doc.recompute()

boolean25 = body.newObject("PartDesign::Boolean", "Boolean024")
boolean25.Type = "Fuse"
boolean25.addObjects([body26])
doc.recompute()

boolean26 = body.newObject("PartDesign::Boolean", "Boolean025")
boolean26.Type = "Fuse"
boolean26.addObjects([body27])
doc.recompute()

boolean27 = body.newObject("PartDesign::Boolean", "Boolean026")
boolean27.Type = "Fuse"
boolean27.addObjects([body28])
doc.recompute()

boolean28 = body.newObject("PartDesign::Boolean", "Boolean027")
boolean28.Type = "Fuse"
boolean28.addObjects([body29])
doc.recompute()

boolean29 = body.newObject("PartDesign::Boolean", "Boolean028")
boolean29.Type = "Fuse"
boolean29.addObjects([body30])
doc.recompute()

boolean30 = body.newObject("PartDesign::Boolean", "Boolean029")
boolean30.Type = "Fuse"
boolean30.addObjects([body31])
doc.recompute()

boolean31 = body.newObject("PartDesign::Boolean", "Boolean030")
boolean31.Type = "Fuse"
boolean31.addObjects([body32])

# Sketch on XY plane
sketch33 = body.newObject("Sketcher::SketchObject", "Sketch032")
sketch33.AttachmentSupport = (doc.getObject("XY_Plane"), [""])
sketch33.MapMode = "FlatFace"
sketch33.addGeometry(Part.Circle(V(0, 0, 0), V(0, 0, 1), 15), False)
sketch33.addGeometry(Part.Circle(V(0, 0, 0), V(0, 0, 1), 12), False)
sketch33.addConstraint(Sketcher.Constraint("Coincident", 0, 3, -1, 1))
sketch33.addConstraint(Sketcher.Constraint("Coincident", 1, 3, -1, 1))
sketch33.addConstraint(Sketcher.Constraint("Diameter", 0, Q("30 mm")))
sketch33.addConstraint(Sketcher.Constraint("Diameter", 1, Q("23 mm")))
pad33 = body.newObject("PartDesign::Pad", "Pad032")
pad33.Profile = sketch33
pad33.Length = 7
pad33.Midplane = True

# Sketch on XY plane
sketch34 = body.newObject("Sketcher::SketchObject", "Sketch033")
sketch34.AttachmentSupport = (doc.getObject("XY_Plane"), [""])
sketch34.MapMode = "FlatFace"
sketch34.AttachmentOffset = App.Placement(V(0, 0, 3.5), App.Rotation())
sketch34.addGeometry(Part.LineSegment(V(4, 18.1, 0), V(4, 14.5, 0)), False)
sketch34.addGeometry(Part.ArcOfCircle(Part.Circle(V(0, 0, 0), V(0, 0, 1), 15), math.radians(75), math.radians(105)), False)
sketch34.addGeometry(Part.LineSegment(V(-4, 14.5, 0), V(-4, 18.1, 0)), False)
sketch34.addGeometry(Part.ArcOfCircle(Part.Circle(V(0, 18.1, 0), V(0, 0, 1), 4), math.radians(0), math.radians(180)), False)
sketch34.addGeometry(Part.Circle(V(0, 18.1, 0), V(0, 0, 1), 1.6), False)
sketch34.addConstraint(Sketcher.Constraint("Coincident", 0, 2, 1, 1))
sketch34.addConstraint(Sketcher.Constraint("Coincident", 1, 2, 2, 1))
sketch34.addConstraint(Sketcher.Constraint("Tangent", 2, 2, 3, 2))
sketch34.addConstraint(Sketcher.Constraint("Tangent", 3, 1, 0, 1))
sketch34.addConstraint(Sketcher.Constraint("Vertical", 0))
sketch34.addConstraint(Sketcher.Constraint("Vertical", 2))
sketch34.addConstraint(Sketcher.Constraint("Coincident", 1, 3, -1, 1))
sketch34.addConstraint(Sketcher.Constraint("Coincident", 4, 3, 3, 3))
sketch34.addConstraint(Sketcher.Constraint("PointOnObject", 3, 3, -2))
sketch34.addConstraint(Sketcher.Constraint("Radius", 1, Q("15 mm")))
sketch34.addConstraint(Sketcher.Constraint("Radius", 3, Q("4 mm")))
sketch34.addConstraint(Sketcher.Constraint("Diameter", 4, Q("3.2 mm")))
sketch34.addConstraint(Sketcher.Constraint("DistanceY", -1, 1, 3, 3, Q("18.14 mm")))
pad34 = body.newObject("PartDesign::Pad", "Pad033")
pad34.Profile = sketch34
pad34.Length = 4
pad34.Reversed = True

# Sketch on XY plane
sketch35 = body.newObject("Sketcher::SketchObject", "Sketch034")
sketch35.AttachmentSupport = (doc.getObject("XY_Plane"), [""])
sketch35.MapMode = "FlatFace"
sketch35.AttachmentOffset = App.Placement(V(0, 0, 3.5), App.Rotation())
sketch35.addGeometry(Part.LineSegment(V(0, 14, 0), V(-8, 6, 0)), False)
sketch35.addGeometry(Part.ArcOfCircle(Part.Circle(V(0, -3, 0), V(0, 0, 1), 12), math.radians(130), math.radians(410)), False)
sketch35.addGeometry(Part.LineSegment(V(8, 6, 0), V(0, 14, 0)), False)
sketch35.addConstraint(Sketcher.Constraint("Coincident", 0, 2, 1, 1))
sketch35.addConstraint(Sketcher.Constraint("Coincident", 1, 2, 2, 1))
sketch35.addConstraint(Sketcher.Constraint("Coincident", 2, 2, 0, 1))
sketch35.addConstraint(Sketcher.Constraint("Symmetric", 0, 2, 1, 2, -2))
sketch35.addConstraint(Sketcher.Constraint("PointOnObject", 2, 2, -2))
sketch35.addConstraint(Sketcher.Constraint("Perpendicular", 0, 2))
sketch35.addConstraint(Sketcher.Constraint("Distance", 0, Q("11 mm")))
sketch35.addConstraint(Sketcher.Constraint("Radius", 1, Q("12.097916 mm")))
sketch35.addConstraint(Sketcher.Constraint("DistanceY", -1, 1, 0, 2, Q("6.363961 mm")))
pad35 = body.newObject("PartDesign::Pad", "Pad034")
pad35.Profile = sketch35
pad35.Length = 5

# Sketch on XY plane
sketch36 = body.newObject("Sketcher::SketchObject", "Sketch035")
sketch36.AttachmentSupport = (doc.getObject("XY_Plane"), [""])
sketch36.MapMode = "FlatFace"
sketch36.AttachmentOffset = App.Placement(V(0, 0, 8.5), App.Rotation())
sketch36.addGeometry(Part.LineSegment(V(7, -13, 0), V(-7, -13, 0)), False)
sketch36.addGeometry(Part.ArcOfCircle(Part.Circle(V(0, 0, 0), V(0, 0, 1), 15), math.radians(-120), math.radians(-90)), False)
sketch36.addGeometry(Part.ArcOfCircle(Part.Circle(V(0, 0, 0), V(0, 0, 1), 15), math.radians(-90), math.radians(-60)), False)
sketch36.addConstraint(Sketcher.Constraint("Coincident", 0, 2, 1, 1))
sketch36.addConstraint(Sketcher.Constraint("Tangent", 1, 2, 2, 1))
sketch36.addConstraint(Sketcher.Constraint("Coincident", 2, 2, 0, 1))
sketch36.addConstraint(Sketcher.Constraint("Horizontal", 0))
sketch36.addConstraint(Sketcher.Constraint("Coincident", 1, 3, -1, 1))
sketch36.addConstraint(Sketcher.Constraint("Equal", 1, 2))
sketch36.addConstraint(Sketcher.Constraint("PointOnObject", 1, 2, -2))
sketch36.addConstraint(Sketcher.Constraint("Radius", 1, Q("15 mm")))
sketch36.addConstraint(Sketcher.Constraint("DistanceY", 0, 2, -1, 1, Q("13 mm")))
pocket1 = body.newObject("PartDesign::Pocket", "Pocket")
pocket1.Profile = sketch36
pocket1.Type = "ThroughAll"
pocket1.Midplane = True

# Sketch on XY plane
sketch37 = body.newObject("Sketcher::SketchObject", "Sketch036")
sketch37.AttachmentSupport = (doc.getObject("XY_Plane"), [""])
sketch37.MapMode = "FlatFace"
sketch37.AttachmentOffset = App.Placement(V(0, 0, 3.5), App.Rotation())
sketch37.addGeometry(Part.LineSegment(V(10.6, 10.6, 0), V(7.1, 7.1, 0)), False)
sketch37.addGeometry(Part.LineSegment(V(7.1, 7.1, 0), V(7.8, 6.4, 0)), False)
sketch37.addGeometry(Part.ArcOfCircle(Part.Circle(V(0, -2.9, 0), V(0, 0, 1), 12.1), math.radians(-57), math.radians(50)), False)
sketch37.addGeometry(Part.LineSegment(V(6.7, -13, 0), V(7.5, -13, 0)), False)
sketch37.addGeometry(Part.ArcOfCircle(Part.Circle(V(0, 0, 0), V(0, 0, 1), 15), math.radians(-60), math.radians(45)), False)
sketch37.addGeometry(Part.LineSegment(V(-7.1, 7.1, 0), V(-10.6, 10.6, 0)), False)
sketch37.addGeometry(Part.ArcOfCircle(Part.Circle(V(0, 0, 0), V(0, 0, 1), 15), math.radians(135), math.radians(240)), False)
sketch37.addGeometry(Part.LineSegment(V(-7.5, -13, 0), V(-6.7, -13, 0)), False)
sketch37.addGeometry(Part.ArcOfCircle(Part.Circle(V(0, -2.9, 0), V(0, 0, 1), 12.1), math.radians(130), math.radians(237)), False)
sketch37.addGeometry(Part.LineSegment(V(-7.8, 6.4, 0), V(-7.1, 7.1, 0)), False)
sketch37.addConstraint(Sketcher.Constraint("Coincident", 0, 2, 1, 1))
sketch37.addConstraint(Sketcher.Constraint("Coincident", 1, 2, 2, 2))
sketch37.addConstraint(Sketcher.Constraint("Coincident", 2, 1, 3, 1))
sketch37.addConstraint(Sketcher.Constraint("Coincident", 3, 2, 4, 1))
sketch37.addConstraint(Sketcher.Constraint("Coincident", 4, 2, 0, 1))
sketch37.addConstraint(Sketcher.Constraint("Coincident", 5, 2, 6, 1))
sketch37.addConstraint(Sketcher.Constraint("Coincident", 6, 2, 7, 1))
sketch37.addConstraint(Sketcher.Constraint("Coincident", 7, 2, 8, 2))
sketch37.addConstraint(Sketcher.Constraint("Coincident", 8, 1, 9, 1))
sketch37.addConstraint(Sketcher.Constraint("Coincident", 9, 2, 5, 1))
sketch37.addConstraint(Sketcher.Constraint("Horizontal", 3))
sketch37.addConstraint(Sketcher.Constraint("Horizontal", 7))
sketch37.addConstraint(Sketcher.Constraint("Coincident", 4, 3, -1, 1))
sketch37.addConstraint(Sketcher.Constraint("Coincident", 6, 3, -1, 1))
sketch37.addConstraint(Sketcher.Constraint("Coincident", 8, 3, 2, 3))
sketch37.addConstraint(Sketcher.Constraint("Equal", 4, 6))
sketch37.addConstraint(Sketcher.Constraint("Equal", 2, 8))
sketch37.addConstraint(Sketcher.Constraint("Symmetric", 2, 1, 7, 2, -2))
sketch37.addConstraint(Sketcher.Constraint("Symmetric", 0, 2, 9, 2, -2))
sketch37.addConstraint(Sketcher.Constraint("Perpendicular", 0, 1))
sketch37.addConstraint(Sketcher.Constraint("Parallel", 1, 5))
sketch37.addConstraint(Sketcher.Constraint("Perpendicular", 5, 9))
sketch37.addConstraint(Sketcher.Constraint("Horizontal", 4, 2, 5, 2))
sketch37.addConstraint(Sketcher.Constraint("Radius", 4, Q("15 mm")))
sketch37.addConstraint(Sketcher.Constraint("Distance", 0, Q("5 mm")))
sketch37.addConstraint(Sketcher.Constraint("Distance", 1, Q("1 mm")))
sketch37.addConstraint(Sketcher.Constraint("DistanceY", 2, 1, -1, 1, Q("13 mm")))
sketch37.addConstraint(Sketcher.Constraint("Radius", 2, Q("12.097916 mm")))
sketch37.addConstraint(Sketcher.Constraint("DistanceX", -1, 1, 4, 2, Q("10.606602 mm")))
pad36 = body.newObject("PartDesign::Pad", "Pad035")
pad36.Profile = sketch37
pad36.Length = 5

doc.recompute()
